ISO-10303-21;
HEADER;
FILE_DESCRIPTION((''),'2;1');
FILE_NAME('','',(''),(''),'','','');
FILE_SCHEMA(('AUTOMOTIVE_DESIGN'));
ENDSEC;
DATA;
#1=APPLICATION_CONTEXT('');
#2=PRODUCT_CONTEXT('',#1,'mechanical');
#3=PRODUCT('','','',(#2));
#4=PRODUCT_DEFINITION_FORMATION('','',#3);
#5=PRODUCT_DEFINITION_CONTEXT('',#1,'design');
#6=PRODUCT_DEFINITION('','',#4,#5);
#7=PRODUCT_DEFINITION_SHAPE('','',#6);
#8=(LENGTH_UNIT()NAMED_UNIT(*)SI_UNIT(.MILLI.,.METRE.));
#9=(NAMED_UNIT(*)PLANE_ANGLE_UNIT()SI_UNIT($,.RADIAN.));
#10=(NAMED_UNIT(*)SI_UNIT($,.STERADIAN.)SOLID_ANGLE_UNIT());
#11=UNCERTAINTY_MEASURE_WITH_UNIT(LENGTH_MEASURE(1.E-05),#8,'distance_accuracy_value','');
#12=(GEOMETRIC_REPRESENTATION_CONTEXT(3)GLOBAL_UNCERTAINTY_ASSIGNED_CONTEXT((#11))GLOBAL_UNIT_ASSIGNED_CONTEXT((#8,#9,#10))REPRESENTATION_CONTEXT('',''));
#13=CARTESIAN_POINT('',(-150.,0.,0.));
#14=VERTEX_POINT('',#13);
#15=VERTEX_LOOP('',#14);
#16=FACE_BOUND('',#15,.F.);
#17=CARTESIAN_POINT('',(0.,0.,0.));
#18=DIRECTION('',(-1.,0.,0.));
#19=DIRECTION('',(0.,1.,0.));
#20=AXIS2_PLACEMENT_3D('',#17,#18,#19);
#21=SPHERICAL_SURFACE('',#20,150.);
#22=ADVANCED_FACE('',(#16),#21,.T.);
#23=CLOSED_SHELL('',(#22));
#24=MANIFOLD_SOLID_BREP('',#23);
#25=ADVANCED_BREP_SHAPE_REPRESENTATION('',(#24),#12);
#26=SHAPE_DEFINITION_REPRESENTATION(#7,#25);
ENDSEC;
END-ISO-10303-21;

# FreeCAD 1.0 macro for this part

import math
import FreeCAD as App
import Part
import Sketcher
Q = App.Units.Quantity

doc = App.newDocument("Part")
body = doc.addObject("PartDesign::Body", "Body")

# Sketch on XY plane
sketch1 = doc.addObject("Sketcher::SketchObject", "Sketch")
body.addObject(sketch1)
sketch1.AttachmentSupport = (doc.XY_Plane, [""])
sketch1.MapMode = "FlatFace"
sketch1.addGeometry([
    Part.ArcOfCircle(Part.Circle(App.Vector(0, 0, 0), App.Vector(0, 0, 1), 150), math.radians(0), math.radians(180)),
    Part.LineSegment(App.Vector(-150, 0, 0), App.Vector(150, 0, 0)),
], False)
sketch1.addConstraint([
    Sketcher.Constraint("Coincident", 0, 1, 1, 2),
    Sketcher.Constraint("Coincident", 1, 1, 0, 2),
    Sketcher.Constraint("Horizontal", 1),
    Sketcher.Constraint("Coincident", 0, 3, -1, 1),
    Sketcher.Constraint("PointOnObject", 0, 1, -1),
    Sketcher.Constraint("Radius", 0, Q("150 mm")),
])
revolution = doc.addObject("PartDesign::Revolution", "Revolution")
body.addObject(revolution)
revolution.Profile = sketch1
revolution.ReferenceAxis = (sketch1, ["H_Axis"])
revolution.Angle = 360

doc.recompute()
